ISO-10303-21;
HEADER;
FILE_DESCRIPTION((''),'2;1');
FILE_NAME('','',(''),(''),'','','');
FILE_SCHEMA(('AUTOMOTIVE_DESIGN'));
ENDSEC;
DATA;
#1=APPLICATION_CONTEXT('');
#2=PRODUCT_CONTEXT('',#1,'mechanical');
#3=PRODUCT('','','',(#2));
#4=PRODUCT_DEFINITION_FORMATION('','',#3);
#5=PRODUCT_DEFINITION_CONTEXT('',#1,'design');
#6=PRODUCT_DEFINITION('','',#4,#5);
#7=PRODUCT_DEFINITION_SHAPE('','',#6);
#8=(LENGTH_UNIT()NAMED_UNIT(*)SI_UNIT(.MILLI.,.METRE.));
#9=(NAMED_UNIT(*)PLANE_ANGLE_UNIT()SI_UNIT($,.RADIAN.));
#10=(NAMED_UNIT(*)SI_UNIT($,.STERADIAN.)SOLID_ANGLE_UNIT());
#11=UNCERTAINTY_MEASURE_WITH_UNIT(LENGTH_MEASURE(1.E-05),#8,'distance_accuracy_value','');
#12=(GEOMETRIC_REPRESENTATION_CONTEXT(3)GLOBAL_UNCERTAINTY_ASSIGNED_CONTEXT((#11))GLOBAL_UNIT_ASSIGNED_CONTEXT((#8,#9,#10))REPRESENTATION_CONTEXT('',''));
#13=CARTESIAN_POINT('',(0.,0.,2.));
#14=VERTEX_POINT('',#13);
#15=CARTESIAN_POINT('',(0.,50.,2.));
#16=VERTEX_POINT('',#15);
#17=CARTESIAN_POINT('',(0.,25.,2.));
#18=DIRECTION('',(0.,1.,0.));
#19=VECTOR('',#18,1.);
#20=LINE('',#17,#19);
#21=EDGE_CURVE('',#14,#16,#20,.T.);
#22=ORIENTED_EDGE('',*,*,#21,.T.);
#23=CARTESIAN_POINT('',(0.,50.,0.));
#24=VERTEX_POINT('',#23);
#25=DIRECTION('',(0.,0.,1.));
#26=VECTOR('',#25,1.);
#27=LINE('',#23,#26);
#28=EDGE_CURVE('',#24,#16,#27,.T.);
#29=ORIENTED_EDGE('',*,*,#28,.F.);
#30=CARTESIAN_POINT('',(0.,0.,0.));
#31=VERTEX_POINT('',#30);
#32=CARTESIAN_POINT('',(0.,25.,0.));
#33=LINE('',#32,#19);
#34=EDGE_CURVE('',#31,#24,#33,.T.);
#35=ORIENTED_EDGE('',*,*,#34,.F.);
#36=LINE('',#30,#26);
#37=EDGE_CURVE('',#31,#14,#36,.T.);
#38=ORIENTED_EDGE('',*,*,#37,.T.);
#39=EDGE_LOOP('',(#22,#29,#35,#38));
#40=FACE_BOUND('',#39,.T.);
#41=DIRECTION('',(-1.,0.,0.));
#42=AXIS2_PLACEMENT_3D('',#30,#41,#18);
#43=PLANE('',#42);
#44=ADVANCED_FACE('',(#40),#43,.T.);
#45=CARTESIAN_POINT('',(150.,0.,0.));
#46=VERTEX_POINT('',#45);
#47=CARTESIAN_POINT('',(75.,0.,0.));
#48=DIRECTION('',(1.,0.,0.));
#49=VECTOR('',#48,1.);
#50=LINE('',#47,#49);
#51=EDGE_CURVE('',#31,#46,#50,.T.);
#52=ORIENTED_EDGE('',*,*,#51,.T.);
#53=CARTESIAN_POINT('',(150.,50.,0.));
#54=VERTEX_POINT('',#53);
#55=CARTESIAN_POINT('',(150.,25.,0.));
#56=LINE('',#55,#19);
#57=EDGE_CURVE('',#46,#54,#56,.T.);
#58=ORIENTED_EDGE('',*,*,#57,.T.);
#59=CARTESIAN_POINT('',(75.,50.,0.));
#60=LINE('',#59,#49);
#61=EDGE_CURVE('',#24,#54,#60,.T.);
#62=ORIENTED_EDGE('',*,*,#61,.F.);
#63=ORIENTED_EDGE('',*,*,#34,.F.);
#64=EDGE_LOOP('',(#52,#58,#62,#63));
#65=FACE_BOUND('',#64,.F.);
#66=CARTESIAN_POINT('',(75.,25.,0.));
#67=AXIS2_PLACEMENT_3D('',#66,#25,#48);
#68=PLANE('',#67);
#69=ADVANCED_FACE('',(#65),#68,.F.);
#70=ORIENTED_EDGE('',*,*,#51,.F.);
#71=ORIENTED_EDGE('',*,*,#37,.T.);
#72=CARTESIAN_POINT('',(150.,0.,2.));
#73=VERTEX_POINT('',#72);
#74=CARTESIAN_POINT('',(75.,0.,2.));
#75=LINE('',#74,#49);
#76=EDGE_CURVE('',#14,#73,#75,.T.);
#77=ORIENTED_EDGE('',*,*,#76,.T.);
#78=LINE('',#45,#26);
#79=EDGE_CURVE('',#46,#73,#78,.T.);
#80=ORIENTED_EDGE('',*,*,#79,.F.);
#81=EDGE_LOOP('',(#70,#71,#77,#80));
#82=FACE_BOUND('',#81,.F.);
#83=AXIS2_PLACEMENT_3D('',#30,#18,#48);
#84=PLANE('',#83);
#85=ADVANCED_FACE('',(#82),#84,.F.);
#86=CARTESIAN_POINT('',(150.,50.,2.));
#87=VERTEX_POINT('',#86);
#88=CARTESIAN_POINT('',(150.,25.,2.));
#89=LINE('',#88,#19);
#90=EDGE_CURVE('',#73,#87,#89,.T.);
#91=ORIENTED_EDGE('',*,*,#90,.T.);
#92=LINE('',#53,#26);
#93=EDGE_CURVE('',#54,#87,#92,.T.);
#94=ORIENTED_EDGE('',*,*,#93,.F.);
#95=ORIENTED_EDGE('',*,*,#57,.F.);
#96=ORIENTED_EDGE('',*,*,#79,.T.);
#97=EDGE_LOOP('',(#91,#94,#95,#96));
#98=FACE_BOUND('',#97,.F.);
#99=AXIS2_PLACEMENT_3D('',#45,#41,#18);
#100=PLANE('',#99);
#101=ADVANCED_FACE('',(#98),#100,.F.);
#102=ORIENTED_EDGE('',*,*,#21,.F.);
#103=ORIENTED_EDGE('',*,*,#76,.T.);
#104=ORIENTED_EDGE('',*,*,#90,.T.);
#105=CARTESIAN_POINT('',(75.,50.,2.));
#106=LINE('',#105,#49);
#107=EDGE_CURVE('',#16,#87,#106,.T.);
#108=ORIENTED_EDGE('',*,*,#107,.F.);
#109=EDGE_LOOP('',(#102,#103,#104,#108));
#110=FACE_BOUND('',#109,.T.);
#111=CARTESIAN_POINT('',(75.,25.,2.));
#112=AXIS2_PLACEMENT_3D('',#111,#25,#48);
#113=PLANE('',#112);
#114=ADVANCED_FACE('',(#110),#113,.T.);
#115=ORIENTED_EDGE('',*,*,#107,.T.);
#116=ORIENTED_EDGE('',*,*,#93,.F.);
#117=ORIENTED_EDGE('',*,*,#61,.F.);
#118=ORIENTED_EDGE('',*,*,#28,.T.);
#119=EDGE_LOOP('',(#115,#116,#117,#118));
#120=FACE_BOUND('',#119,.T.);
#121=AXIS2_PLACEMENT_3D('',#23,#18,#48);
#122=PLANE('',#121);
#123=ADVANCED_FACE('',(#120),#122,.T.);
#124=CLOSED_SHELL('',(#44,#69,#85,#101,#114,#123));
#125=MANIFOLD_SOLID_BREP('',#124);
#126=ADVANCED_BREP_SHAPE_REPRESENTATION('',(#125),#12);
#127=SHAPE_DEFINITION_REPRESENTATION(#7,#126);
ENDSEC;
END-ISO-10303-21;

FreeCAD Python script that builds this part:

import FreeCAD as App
import Part
import Sketcher
from FreeCAD import Vector
Q = App.Units.Quantity

doc = App.newDocument("Part")
params = doc.addObject("Spreadsheet::Sheet", "Params")
for row, (alias, value) in enumerate([
    ("sketch1_width", "150 mm"),
    ("sketch1_height", "50 mm"),
    ("pad1_length", "2 mm"),
], start=1):
    params.set(f"A{row}", alias)
    params.set(f"B{row}", "=" + value)
    params.setAlias(f"B{row}", alias)

body = doc.addObject("PartDesign::Body", "Body")

# Sketch on XY plane
sketch1 = body.newObject("Sketcher::SketchObject", "Sketch")
sketch1.AttachmentSupport = (doc.getObject("XY_Plane"), [""])
sketch1.MapMode = "FlatFace"
sketch1.addGeometry(Part.LineSegment(Vector(0, 50, 0), Vector(0, 0, 0)), False)
sketch1.addGeometry(Part.LineSegment(Vector(0, 0, 0), Vector(150, 0, 0)), False)
sketch1.addGeometry(Part.LineSegment(Vector(150, 0, 0), Vector(150, 50, 0)), False)
sketch1.addGeometry(Part.LineSegment(Vector(150, 50, 0), Vector(0, 50, 0)), False)
sketch1.addConstraint(Sketcher.Constraint("Coincident", 0, 2, 1, 1))
sketch1.addConstraint(Sketcher.Constraint("Coincident", 1, 2, 2, 1))
sketch1.addConstraint(Sketcher.Constraint("Coincident", 2, 2, 3, 1))
sketch1.addConstraint(Sketcher.Constraint("Coincident", 3, 2, 0, 1))
sketch1.addConstraint(Sketcher.Constraint("Vertical", 0))
sketch1.addConstraint(Sketcher.Constraint("Horizontal", 1))
sketch1.addConstraint(Sketcher.Constraint("Vertical", 2))
sketch1.addConstraint(Sketcher.Constraint("Horizontal", 3))
sketch1.addConstraint(Sketcher.Constraint("Coincident", 0, 2, -1, 1))
sketch1.addConstraint(Sketcher.Constraint("DistanceX", 1, 1, 1, 2, Q("150 mm")))
sketch1.addConstraint(Sketcher.Constraint("DistanceY", 0, 2, 0, 1, Q("50 mm")))
sketch1.setExpression("Constraints[9]", "Params.sketch1_width")
sketch1.setExpression("Constraints[10]", "Params.sketch1_height")
pad1 = body.newObject("PartDesign::Pad", "Pad")
pad1.Profile = sketch1
pad1.setExpression("Length", "Params.pad1_length")

doc.recompute()
